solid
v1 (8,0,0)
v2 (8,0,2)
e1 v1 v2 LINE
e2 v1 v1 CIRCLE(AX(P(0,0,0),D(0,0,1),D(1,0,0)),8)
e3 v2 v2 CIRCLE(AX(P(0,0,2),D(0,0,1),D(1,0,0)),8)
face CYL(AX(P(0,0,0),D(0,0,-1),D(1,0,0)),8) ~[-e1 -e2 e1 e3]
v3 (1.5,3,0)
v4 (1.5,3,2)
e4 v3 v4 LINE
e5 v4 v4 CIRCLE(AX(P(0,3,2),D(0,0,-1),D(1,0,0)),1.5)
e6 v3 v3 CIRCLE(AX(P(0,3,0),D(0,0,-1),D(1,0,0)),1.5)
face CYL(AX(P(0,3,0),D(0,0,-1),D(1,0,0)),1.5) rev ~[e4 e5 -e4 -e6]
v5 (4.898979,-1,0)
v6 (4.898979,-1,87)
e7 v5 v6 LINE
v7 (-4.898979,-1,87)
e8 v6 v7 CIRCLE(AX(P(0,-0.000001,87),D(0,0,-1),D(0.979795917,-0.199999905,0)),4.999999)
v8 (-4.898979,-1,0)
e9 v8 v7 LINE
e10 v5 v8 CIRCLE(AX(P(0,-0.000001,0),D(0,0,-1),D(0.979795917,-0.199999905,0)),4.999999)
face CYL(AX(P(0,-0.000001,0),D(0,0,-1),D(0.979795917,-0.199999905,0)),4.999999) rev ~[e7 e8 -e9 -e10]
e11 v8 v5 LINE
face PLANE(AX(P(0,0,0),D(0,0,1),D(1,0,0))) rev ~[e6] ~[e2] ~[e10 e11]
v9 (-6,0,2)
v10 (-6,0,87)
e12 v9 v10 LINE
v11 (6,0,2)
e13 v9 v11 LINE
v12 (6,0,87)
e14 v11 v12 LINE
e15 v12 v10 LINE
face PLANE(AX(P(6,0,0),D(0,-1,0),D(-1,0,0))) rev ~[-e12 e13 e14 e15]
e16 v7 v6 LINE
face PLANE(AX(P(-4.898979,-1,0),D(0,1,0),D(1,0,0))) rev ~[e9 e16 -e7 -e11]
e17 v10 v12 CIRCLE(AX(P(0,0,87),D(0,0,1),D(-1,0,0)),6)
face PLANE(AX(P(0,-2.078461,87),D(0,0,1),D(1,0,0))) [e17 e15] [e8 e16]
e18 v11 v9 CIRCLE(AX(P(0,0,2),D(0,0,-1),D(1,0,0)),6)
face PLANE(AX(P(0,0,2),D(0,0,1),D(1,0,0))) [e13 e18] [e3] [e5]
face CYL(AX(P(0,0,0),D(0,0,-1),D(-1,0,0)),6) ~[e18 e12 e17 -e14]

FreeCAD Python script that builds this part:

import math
import FreeCAD as App
import Part
import Sketcher

doc = App.newDocument("Part")
body = doc.addObject("PartDesign::Body", "Body")

sketch1 = body.newObject("Sketcher::SketchObject", "Sketch")
sketch1.AttachmentSupport = (doc.getObject("XY_Plane"), [""])
sketch1.MapMode = "FlatFace"
sketch1.addGeometry(Part.LineSegment(App.Vector(6, 0, 0), App.Vector(-6, 0, 0)), False)
sketch1.addGeometry(Part.ArcOfCircle(Part.Circle(App.Vector(0, 0, 0), App.Vector(0, 0, 1), 6), math.radians(180), math.radians(360)), False)
sketch1.addGeometry(Part.LineSegment(App.Vector(-4.9, -1, 0), App.Vector(4.9, -1, 0)), False)
sketch1.addGeometry(Part.ArcOfCircle(Part.Circle(App.Vector(0, 0, 0), App.Vector(0, 0, 1), 5), math.radians(-168), math.radians(-12)), False)
sketch1.addConstraint(Sketcher.Constraint("Coincident", 0, 1, 1, 2))
sketch1.addConstraint(Sketcher.Constraint("Coincident", 1, 1, 0, 2))
sketch1.addConstraint(Sketcher.Constraint("Coincident", 2, 1, 3, 1))
sketch1.addConstraint(Sketcher.Constraint("Coincident", 3, 2, 2, 2))
sketch1.addConstraint(Sketcher.Constraint("Horizontal", 0))
sketch1.addConstraint(Sketcher.Constraint("Horizontal", 2))
sketch1.addConstraint(Sketcher.Constraint("Coincident", 1, 3, -1, 1))
sketch1.addConstraint(Sketcher.Constraint("Coincident", 3, 3, -1, 1))
sketch1.addConstraint(Sketcher.Constraint("PointOnObject", 0, 1, -1))
sketch1.addConstraint(Sketcher.Constraint("Radius", 1, 6.0))
sketch1.addConstraint(Sketcher.Constraint("Radius", 3, 4.999999))
sketch1.addConstraint(Sketcher.Constraint("DistanceY", 2, 1, -1, 1, 1.0))
pad1 = body.newObject("PartDesign::Pad", "Pad")
pad1.Profile = sketch1
pad1.Length = 87

sketch2 = body.newObject("Sketcher::SketchObject", "Sketch001")
sketch2.AttachmentSupport = (doc.getObject("XY_Plane"), [""])
sketch2.MapMode = "FlatFace"
sketch2.addGeometry(Part.Circle(App.Vector(0, 0, 0), App.Vector(0, 0, 1), 8), False)
sketch2.addGeometry(Part.LineSegment(App.Vector(-6, 0, 0), App.Vector(6, 0, 0)), False)
sketch2.addGeometry(Part.ArcOfCircle(Part.Circle(App.Vector(0, 0, 0), App.Vector(0, 0, 1), 6), math.radians(180), math.radians(360)), False)
sketch2.addConstraint(Sketcher.Constraint("Coincident", 1, 1, 2, 1))
sketch2.addConstraint(Sketcher.Constraint("Coincident", 2, 2, 1, 2))
sketch2.addConstraint(Sketcher.Constraint("Horizontal", 1))
sketch2.addConstraint(Sketcher.Constraint("Coincident", 0, 3, -1, 1))
sketch2.addConstraint(Sketcher.Constraint("Coincident", 2, 3, -1, 1))
sketch2.addConstraint(Sketcher.Constraint("PointOnObject", 1, 1, -1))
sketch2.addConstraint(Sketcher.Constraint("Diameter", 0, 16.0))
sketch2.addConstraint(Sketcher.Constraint("Radius", 2, 6.0))
pad2 = body.newObject("PartDesign::Pad", "Pad001")
pad2.Profile = sketch2
pad2.Length = 2

sketch3 = body.newObject("Sketcher::SketchObject", "Sketch002")
sketch3.AttachmentSupport = (doc.getObject("XY_Plane"), [""])
sketch3.MapMode = "FlatFace"
sketch3.addGeometry(Part.Circle(App.Vector(0, 3, 0), App.Vector(0, 0, 1), 1.5), False)
sketch3.addConstraint(Sketcher.Constraint("PointOnObject", 0, 3, -2))
sketch3.addConstraint(Sketcher.Constraint("Diameter", 0, 3.0))
sketch3.addConstraint(Sketcher.Constraint("DistanceY", -1, 1, 0, 3, 3.0))
pocket1 = body.newObject("PartDesign::Pocket", "Pocket")
pocket1.Profile = sketch3
pocket1.Length = 25
pocket1.Reversed = True

doc.recompute()
